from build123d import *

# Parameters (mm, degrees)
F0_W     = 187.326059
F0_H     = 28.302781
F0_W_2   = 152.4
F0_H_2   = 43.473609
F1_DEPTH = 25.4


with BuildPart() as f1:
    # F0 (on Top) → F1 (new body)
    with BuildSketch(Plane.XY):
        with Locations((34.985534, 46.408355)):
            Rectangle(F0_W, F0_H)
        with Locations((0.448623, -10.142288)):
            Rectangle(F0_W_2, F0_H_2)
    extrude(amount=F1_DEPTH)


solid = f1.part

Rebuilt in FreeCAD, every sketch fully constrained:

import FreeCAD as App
import Part
import Sketcher

V = App.Vector
Q = App.Units.Quantity


def add_polygon(sketch, points):
    """Adds a closed chain of lines whose ends are joined by coincident constraints."""
    first, n = sketch.GeometryCount, len(points)
    for a, b in zip(points, points[1:] + points[:1]):
        sketch.addGeometry(Part.LineSegment(App.Vector(*a, 0), App.Vector(*b, 0)), False)
    for i in range(n):
        sketch.addConstraint(Sketcher.Constraint("Coincident", first + i, 2, first + (i + 1) % n, 1))

doc = App.newDocument("Part")
params = doc.addObject("Spreadsheet::Sheet", "Params")
for row, (alias, value) in enumerate([
    ("sketch1_width", "6 in"),
    ("pad1_length", "1 in"),
], start=1):
    params.set(f"A{row}", alias)
    params.set(f"B{row}", "=" + value)
    params.setAlias(f"B{row}", alias)

body = doc.addObject("PartDesign::Body", "Body")
body.AllowCompound = True

# Sketch on XY plane
sketch1 = doc.addObject("Sketcher::SketchObject", "Sketch")
body.addObject(sketch1)
sketch1.AttachmentSupport = (doc.XY_Plane, [""])
sketch1.MapMode = "FlatFace"
add_polygon(sketch1, [(-59, 61), (-59, 32), (129, 32), (129, 61)])  # lines 0-3
add_polygon(sketch1, [(-76, 12), (-76, -32), (77, -32), (77, 12)])  # lines 4-7
sketch1.addConstraint([
    Sketcher.Constraint("Vertical", 0),
    Sketcher.Constraint("Horizontal", 1),
    Sketcher.Constraint("Vertical", 2),
    Sketcher.Constraint("Horizontal", 3),
    Sketcher.Constraint("Vertical", 4),
    Sketcher.Constraint("Horizontal", 5),
    Sketcher.Constraint("Vertical", 6),
    Sketcher.Constraint("Horizontal", 7),
    Sketcher.Constraint("DistanceX", 5, 1, 5, 2, Q("6 in")),
    Sketcher.Constraint("DistanceX", 4, 2, 0, 2, Q("0.6722001 in")),
    Sketcher.Constraint("DistanceX", 1, 1, 1, 2, 187.326059),
    Sketcher.Constraint("DistanceY", 0, 2, 0, 1, 28.302781),
    Sketcher.Constraint("DistanceY", 4, 2, 4, 1, 43.473609),
    Sketcher.Constraint("DistanceY", 4, 2, 3, 2, 92.438838),
    Sketcher.Constraint("DistanceX", 0, 2, -1, 1, 58.677495),
    Sketcher.Constraint("DistanceY", -1, 1, 0, 2, 32.256965),
])
sketch1.setExpression("Constraints[16]", "Params.sketch1_width")
pad1 = doc.addObject("PartDesign::Pad", "Pad")
body.addObject(pad1)
pad1.Profile = sketch1
pad1.setExpression("Length", "Params.pad1_length")

doc.recompute()
